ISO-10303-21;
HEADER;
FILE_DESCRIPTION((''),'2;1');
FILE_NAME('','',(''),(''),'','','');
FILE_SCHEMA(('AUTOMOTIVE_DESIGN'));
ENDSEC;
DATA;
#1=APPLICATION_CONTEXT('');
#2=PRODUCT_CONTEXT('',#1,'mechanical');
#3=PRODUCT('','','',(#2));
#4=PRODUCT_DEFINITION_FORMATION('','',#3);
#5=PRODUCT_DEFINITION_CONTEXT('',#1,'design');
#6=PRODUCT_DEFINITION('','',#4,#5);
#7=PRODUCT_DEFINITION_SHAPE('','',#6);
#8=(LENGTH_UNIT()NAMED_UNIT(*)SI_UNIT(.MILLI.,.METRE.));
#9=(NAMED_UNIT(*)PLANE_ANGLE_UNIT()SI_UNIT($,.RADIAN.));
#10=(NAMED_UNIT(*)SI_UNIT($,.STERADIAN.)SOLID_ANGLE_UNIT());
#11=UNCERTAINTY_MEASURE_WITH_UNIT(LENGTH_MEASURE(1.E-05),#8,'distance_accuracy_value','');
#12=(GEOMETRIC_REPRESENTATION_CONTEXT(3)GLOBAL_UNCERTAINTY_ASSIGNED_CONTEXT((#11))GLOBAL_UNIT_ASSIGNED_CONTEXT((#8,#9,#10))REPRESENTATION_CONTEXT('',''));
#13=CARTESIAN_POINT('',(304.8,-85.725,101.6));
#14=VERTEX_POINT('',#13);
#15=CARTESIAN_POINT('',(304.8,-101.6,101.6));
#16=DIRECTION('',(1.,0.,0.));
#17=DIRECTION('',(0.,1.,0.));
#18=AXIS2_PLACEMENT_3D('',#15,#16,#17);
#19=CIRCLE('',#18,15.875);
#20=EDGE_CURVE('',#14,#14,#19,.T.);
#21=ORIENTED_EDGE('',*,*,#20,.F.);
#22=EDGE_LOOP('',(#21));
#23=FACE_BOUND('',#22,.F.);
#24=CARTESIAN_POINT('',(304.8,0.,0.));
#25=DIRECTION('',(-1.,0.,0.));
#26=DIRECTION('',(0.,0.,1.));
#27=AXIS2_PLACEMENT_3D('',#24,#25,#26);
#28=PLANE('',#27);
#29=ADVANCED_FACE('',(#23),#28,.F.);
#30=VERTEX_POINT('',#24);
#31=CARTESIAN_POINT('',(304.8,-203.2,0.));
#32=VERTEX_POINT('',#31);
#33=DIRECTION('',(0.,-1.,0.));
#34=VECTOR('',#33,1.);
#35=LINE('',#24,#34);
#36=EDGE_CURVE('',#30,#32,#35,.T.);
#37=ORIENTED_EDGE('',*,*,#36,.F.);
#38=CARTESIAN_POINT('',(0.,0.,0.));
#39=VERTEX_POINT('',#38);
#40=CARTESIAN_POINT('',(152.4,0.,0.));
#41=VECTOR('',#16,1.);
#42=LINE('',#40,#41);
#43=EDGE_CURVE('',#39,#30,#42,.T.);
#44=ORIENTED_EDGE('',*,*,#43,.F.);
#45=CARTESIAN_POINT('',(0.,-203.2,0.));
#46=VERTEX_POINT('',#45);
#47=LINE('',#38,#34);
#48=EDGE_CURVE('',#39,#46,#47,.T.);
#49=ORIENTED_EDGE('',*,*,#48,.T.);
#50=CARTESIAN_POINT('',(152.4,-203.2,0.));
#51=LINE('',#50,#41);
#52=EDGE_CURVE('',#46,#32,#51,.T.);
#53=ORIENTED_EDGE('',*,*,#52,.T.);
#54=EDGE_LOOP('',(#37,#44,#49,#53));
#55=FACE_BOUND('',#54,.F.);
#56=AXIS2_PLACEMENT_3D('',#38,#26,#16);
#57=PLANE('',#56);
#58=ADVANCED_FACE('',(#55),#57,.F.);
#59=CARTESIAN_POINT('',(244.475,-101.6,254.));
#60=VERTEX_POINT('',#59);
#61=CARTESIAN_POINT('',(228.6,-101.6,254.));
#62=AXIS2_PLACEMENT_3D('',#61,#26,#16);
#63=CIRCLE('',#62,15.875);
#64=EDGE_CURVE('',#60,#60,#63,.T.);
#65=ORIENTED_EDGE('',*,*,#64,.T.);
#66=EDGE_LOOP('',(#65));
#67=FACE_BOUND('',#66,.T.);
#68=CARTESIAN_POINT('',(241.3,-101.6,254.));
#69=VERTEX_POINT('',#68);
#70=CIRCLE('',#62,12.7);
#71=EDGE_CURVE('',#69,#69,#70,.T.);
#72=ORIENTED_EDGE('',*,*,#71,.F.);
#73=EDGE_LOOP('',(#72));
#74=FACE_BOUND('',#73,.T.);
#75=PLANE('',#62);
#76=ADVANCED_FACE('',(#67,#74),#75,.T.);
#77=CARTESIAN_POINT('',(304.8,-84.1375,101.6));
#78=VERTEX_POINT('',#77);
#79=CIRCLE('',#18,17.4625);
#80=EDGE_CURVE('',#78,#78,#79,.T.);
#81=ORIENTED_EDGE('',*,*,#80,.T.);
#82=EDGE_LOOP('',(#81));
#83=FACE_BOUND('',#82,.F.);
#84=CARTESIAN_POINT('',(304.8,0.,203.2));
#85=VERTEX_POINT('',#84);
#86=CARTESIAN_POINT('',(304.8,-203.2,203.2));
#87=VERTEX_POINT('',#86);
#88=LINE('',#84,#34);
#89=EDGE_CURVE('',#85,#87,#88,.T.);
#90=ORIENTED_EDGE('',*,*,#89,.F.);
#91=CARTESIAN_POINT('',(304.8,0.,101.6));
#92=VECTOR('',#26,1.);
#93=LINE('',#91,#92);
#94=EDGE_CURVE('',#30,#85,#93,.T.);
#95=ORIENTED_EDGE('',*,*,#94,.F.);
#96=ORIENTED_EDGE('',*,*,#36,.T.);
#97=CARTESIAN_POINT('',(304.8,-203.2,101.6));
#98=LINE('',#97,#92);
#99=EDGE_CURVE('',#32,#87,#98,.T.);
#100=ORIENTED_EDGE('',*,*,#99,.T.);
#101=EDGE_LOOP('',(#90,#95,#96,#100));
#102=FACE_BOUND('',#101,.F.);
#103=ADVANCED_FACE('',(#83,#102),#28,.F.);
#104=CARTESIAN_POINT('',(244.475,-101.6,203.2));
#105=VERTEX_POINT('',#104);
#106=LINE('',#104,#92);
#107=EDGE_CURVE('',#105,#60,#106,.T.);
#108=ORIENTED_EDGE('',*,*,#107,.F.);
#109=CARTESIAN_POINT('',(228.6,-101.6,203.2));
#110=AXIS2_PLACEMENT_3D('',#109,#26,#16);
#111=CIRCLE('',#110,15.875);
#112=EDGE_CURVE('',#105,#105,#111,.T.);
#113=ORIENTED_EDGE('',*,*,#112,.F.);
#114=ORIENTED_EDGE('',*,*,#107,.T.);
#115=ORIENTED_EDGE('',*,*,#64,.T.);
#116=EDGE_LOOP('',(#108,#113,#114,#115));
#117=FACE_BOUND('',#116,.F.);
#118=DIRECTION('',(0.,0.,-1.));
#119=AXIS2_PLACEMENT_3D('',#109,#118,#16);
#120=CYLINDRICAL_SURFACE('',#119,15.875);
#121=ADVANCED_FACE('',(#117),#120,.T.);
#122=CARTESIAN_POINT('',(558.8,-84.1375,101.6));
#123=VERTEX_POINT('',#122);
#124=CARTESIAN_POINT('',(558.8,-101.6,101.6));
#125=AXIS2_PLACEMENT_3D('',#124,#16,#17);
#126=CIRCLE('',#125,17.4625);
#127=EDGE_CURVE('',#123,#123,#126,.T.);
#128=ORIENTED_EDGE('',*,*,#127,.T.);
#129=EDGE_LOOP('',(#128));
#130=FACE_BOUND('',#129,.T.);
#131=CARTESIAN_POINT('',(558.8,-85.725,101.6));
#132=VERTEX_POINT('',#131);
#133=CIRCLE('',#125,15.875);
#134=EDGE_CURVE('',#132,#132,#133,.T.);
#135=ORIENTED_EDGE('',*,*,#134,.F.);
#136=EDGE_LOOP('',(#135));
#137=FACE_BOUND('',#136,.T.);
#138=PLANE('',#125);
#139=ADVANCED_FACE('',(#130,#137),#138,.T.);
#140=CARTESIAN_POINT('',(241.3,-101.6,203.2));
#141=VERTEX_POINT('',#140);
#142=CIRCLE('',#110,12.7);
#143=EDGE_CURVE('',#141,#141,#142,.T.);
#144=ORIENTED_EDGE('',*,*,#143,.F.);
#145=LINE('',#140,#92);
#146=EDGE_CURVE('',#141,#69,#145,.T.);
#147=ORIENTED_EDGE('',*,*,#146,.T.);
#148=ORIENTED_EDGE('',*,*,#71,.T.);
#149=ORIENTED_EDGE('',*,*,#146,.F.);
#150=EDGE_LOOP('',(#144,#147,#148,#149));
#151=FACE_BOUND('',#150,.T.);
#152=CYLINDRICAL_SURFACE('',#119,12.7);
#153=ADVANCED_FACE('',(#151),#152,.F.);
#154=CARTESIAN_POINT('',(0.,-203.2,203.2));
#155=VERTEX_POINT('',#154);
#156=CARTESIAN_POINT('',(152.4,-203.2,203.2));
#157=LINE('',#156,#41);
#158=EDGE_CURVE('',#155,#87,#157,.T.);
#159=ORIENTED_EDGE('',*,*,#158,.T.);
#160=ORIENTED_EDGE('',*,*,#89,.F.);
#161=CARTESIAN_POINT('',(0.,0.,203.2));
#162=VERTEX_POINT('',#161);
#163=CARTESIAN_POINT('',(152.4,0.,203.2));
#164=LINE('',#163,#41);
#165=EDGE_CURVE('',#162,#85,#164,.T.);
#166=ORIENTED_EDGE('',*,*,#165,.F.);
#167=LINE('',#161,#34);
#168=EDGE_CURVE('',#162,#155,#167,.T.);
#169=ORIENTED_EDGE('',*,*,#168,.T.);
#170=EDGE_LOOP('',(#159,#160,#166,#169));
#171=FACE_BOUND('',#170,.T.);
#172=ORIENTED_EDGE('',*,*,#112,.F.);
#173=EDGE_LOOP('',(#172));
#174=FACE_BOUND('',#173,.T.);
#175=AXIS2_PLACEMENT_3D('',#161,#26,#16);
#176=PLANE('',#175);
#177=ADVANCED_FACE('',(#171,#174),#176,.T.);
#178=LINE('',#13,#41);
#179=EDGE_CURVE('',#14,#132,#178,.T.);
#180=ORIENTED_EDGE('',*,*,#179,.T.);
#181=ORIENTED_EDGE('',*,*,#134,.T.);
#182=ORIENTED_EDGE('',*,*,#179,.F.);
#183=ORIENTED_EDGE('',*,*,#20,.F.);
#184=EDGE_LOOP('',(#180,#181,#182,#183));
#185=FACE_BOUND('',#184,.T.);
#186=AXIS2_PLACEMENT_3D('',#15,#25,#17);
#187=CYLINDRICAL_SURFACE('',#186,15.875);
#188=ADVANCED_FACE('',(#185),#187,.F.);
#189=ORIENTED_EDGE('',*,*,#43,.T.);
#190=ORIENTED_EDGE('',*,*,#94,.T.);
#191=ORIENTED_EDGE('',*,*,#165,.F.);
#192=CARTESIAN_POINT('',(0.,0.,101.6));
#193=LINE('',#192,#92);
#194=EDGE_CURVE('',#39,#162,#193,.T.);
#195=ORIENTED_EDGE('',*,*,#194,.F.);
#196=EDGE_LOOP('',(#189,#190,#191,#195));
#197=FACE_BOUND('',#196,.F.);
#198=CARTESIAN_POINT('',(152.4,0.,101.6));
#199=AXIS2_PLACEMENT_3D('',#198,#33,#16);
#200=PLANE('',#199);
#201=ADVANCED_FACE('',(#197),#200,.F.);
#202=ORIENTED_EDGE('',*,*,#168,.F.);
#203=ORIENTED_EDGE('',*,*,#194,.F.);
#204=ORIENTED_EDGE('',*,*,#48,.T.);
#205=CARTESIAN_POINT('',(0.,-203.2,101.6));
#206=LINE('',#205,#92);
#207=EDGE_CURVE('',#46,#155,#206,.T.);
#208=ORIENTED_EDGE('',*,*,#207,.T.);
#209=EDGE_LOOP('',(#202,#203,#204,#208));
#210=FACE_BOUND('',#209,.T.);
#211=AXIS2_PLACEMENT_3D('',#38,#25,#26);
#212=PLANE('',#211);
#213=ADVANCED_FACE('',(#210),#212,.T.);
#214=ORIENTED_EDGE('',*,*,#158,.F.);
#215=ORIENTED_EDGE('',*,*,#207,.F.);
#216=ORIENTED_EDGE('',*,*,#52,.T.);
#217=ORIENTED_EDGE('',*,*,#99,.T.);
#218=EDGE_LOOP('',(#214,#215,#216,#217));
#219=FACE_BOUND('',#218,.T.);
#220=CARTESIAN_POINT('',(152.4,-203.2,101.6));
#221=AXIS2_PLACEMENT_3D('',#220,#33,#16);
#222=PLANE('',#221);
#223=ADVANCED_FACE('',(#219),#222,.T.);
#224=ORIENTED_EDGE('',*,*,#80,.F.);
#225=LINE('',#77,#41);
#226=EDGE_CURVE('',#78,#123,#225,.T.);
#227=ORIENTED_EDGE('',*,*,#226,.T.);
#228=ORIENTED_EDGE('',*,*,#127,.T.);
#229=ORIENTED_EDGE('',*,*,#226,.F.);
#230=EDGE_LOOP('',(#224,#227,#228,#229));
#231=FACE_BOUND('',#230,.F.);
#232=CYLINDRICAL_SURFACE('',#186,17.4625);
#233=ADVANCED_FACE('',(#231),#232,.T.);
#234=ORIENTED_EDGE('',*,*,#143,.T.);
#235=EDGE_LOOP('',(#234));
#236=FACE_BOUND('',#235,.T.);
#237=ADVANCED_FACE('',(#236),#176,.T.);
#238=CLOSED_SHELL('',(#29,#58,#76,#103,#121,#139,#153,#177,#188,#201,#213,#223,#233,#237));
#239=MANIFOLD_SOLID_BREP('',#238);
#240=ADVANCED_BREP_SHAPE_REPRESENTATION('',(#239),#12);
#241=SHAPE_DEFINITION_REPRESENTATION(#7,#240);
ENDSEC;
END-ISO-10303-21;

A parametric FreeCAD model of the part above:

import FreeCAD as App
import Part
import Sketcher
from FreeCAD import Vector
Q = App.Units.Quantity

doc = App.newDocument("Part")
body = doc.addObject("PartDesign::Body", "Body")

# Sketch on XZ plane
sketch1 = body.newObject("Sketcher::SketchObject", "Sketch")
sketch1.AttachmentSupport = (doc.getObject("XZ_Plane"), [""])
sketch1.MapMode = "FlatFace"
sketch1.addGeometry([
    Part.LineSegment(Vector(0, 203, 0), Vector(0, 0, 0)),
    Part.LineSegment(Vector(0, 0, 0), Vector(305, 0, 0)),
    Part.LineSegment(Vector(305, 0, 0), Vector(305, 203, 0)),
    Part.LineSegment(Vector(305, 203, 0), Vector(0, 203, 0)),
], False)
sketch1.addConstraint([
    Sketcher.Constraint("Coincident", 0, 2, 1, 1),
    Sketcher.Constraint("Coincident", 1, 2, 2, 1),
    Sketcher.Constraint("Coincident", 2, 2, 3, 1),
    Sketcher.Constraint("Coincident", 3, 2, 0, 1),
    Sketcher.Constraint("Vertical", 0),
    Sketcher.Constraint("Horizontal", 1),
    Sketcher.Constraint("Vertical", 2),
    Sketcher.Constraint("Horizontal", 3),
    Sketcher.Constraint("Coincident", 0, 2, -1, 1),
    Sketcher.Constraint("DistanceX", 1, 1, 1, 2, Q("12 in")),
    Sketcher.Constraint("DistanceY", 0, 2, 0, 1, Q("8 in")),
])
pad1 = body.newObject("PartDesign::Pad", "Pad")
pad1.Profile = sketch1
pad1.Length = Q("8 in")

# Sketch on YZ plane
sketch2 = body.newObject("Sketcher::SketchObject", "Sketch001")
sketch2.AttachmentSupport = (doc.getObject("YZ_Plane"), [""])
sketch2.MapMode = "FlatFace"
sketch2.AttachmentOffset = App.Placement(Vector(0, 0, 12 * 25.4), App.Rotation())
sketch2.addGeometry([
    Part.Circle(Vector(-102, 102, 0), Vector(0, 0, 1), 17),
    Part.Circle(Vector(-102, 102, 0), Vector(0, 0, 1), 16),
], False)
sketch2.addConstraint([
    Sketcher.Constraint("Coincident", 1, 3, 0, 3),
    Sketcher.Constraint("Diameter", 1, Q("1.25 in")),
    Sketcher.Constraint("Diameter", 0, Q("1.375 in")),
    Sketcher.Constraint("DistanceX", 0, 3, -1, 1, Q("4 in")),
    Sketcher.Constraint("DistanceY", -1, 1, 0, 3, Q("4 in")),
])
pad2 = body.newObject("PartDesign::Pad", "Pad001")
pad2.Profile = sketch2
pad2.Length = Q("10 in")

# Sketch on XY plane
sketch3 = body.newObject("Sketcher::SketchObject", "Sketch002")
sketch3.AttachmentSupport = (doc.getObject("XY_Plane"), [""])
sketch3.MapMode = "FlatFace"
sketch3.AttachmentOffset = App.Placement(Vector(0, 0, 8 * 25.4), App.Rotation())
sketch3.addGeometry([
    Part.Circle(Vector(229, -102, 0), Vector(0, 0, 1), 16),
    Part.Circle(Vector(229, -102, 0), Vector(0, 0, 1), 13),
], False)
sketch3.addConstraint([
    Sketcher.Constraint("Coincident", 1, 3, 0, 3),
    Sketcher.Constraint("Diameter", 1, Q("1 in")),
    Sketcher.Constraint("Diameter", 0, Q("1.25 in")),
    Sketcher.Constraint("DistanceX", -1, 1, 0, 3, Q("9 in")),
    Sketcher.Constraint("DistanceY", 0, 3, -1, 1, Q("4 in")),
])
pad3 = body.newObject("PartDesign::Pad", "Pad002")
pad3.Profile = sketch3
pad3.Length = Q("2 in")

doc.recompute()
